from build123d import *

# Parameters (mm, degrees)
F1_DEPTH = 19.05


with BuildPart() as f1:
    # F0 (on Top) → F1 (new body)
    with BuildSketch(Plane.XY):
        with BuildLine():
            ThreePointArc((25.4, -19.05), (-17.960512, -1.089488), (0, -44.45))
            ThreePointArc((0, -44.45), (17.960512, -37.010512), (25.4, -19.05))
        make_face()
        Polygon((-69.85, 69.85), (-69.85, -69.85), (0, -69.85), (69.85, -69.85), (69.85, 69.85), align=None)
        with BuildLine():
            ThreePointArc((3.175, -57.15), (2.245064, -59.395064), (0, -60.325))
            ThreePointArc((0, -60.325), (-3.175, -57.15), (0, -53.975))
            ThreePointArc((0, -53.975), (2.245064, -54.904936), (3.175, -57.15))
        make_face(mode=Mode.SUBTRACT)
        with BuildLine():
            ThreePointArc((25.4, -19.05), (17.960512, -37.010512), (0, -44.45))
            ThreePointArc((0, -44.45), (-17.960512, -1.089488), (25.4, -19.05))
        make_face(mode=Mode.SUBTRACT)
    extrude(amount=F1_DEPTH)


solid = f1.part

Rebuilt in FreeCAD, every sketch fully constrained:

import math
import FreeCAD as App
import Part
import Sketcher
from FreeCAD import Vector
Q = App.Units.Quantity

doc = App.newDocument("Part")
body = doc.addObject("PartDesign::Body", "Body")

sketch1 = body.newObject("Sketcher::SketchObject", "Sketch")
sketch1.AttachmentSupport = (doc.getObject("XY_Plane"), [""])
sketch1.MapMode = "FlatFace"
sketch1.addGeometry([
    Part.LineSegment(Vector(-69.85, 69.85, 0), Vector(-69.85, -69.85, 0)),
    Part.LineSegment(Vector(-69.85, -69.85, 0), Vector(69.85, -69.85, 0)),
    Part.LineSegment(Vector(69.85, -69.85, 0), Vector(69.85, 69.85, 0)),
    Part.LineSegment(Vector(69.85, 69.85, 0), Vector(-69.85, 69.85, 0)),
    Part.ArcOfCircle(Part.Circle(Vector(0, -57.15, 0), Vector(0, 0, 1), 3.175), math.radians(0.000002), math.radians(89.999998)),
    Part.ArcOfCircle(Part.Circle(Vector(0, -57.15, 0), Vector(0, 0, 1), 3.175), math.radians(-89.999998), math.radians(-0.000002)),
    Part.ArcOfCircle(Part.Circle(Vector(0, -57.15, 0), Vector(0, 0, 1), 3.175), math.radians(90), math.radians(270)),
    Part.ArcOfCircle(Part.Circle(Vector(0, -19.05, 0), Vector(0, 0, 1), 25.4), math.radians(0), math.radians(270)),
    Part.ArcOfCircle(Part.Circle(Vector(-0.000001, -19.049999, 0), Vector(0, 0, 1), 25.400001), math.radians(-89.999998), math.radians(-0.000002)),
], False)
sketch1.addConstraint([
    Sketcher.Constraint("Coincident", 0, 2, 1, 1),
    Sketcher.Constraint("Coincident", 1, 2, 2, 1),
    Sketcher.Constraint("Coincident", 2, 2, 3, 1),
    Sketcher.Constraint("Coincident", 3, 2, 0, 1),
    Sketcher.Constraint("Tangent", 4, 1, 5, 2),
    Sketcher.Constraint("Tangent", 5, 1, 6, 2),
    Sketcher.Constraint("Tangent", 6, 1, 4, 2),
    Sketcher.Constraint("Tangent", 7, 1, 8, 2),
    Sketcher.Constraint("Coincident", 8, 1, 7, 2),
    Sketcher.Constraint("Vertical", 0),
    Sketcher.Constraint("Horizontal", 1),
    Sketcher.Constraint("Vertical", 2),
    Sketcher.Constraint("Horizontal", 3),
    Sketcher.Constraint("Symmetric", 0, 2, 2, 2, -1, 1),
    Sketcher.Constraint("PointOnObject", 4, 3, -2),
    Sketcher.Constraint("PointOnObject", 7, 3, -2),
    Sketcher.Constraint("PointOnObject", 5, 1, -2),
    Sketcher.Constraint("PointOnObject", 6, 1, -2),
    Sketcher.Constraint("PointOnObject", 8, 1, -2),
    Sketcher.Constraint("Horizontal", 6, 3, 4, 1),
    Sketcher.Constraint("Horizontal", 8, 3, 7, 1),
    Sketcher.Constraint("Equal", 3, 0),
    Sketcher.Constraint("Radius", 7, Q("1 in")),
    Sketcher.Constraint("DistanceX", 1, 1, 1, 2, Q("5.5 in")),
    Sketcher.Constraint("Radius", 4, Q("0.125 in")),
    Sketcher.Constraint("DistanceY", 0, 2, 8, 3, Q("2 in")),
    Sketcher.Constraint("DistanceY", 5, 3, 2, 2, Q("5 in")),
])
pad1 = body.newObject("PartDesign::Pad", "Pad")
pad1.Profile = sketch1
pad1.Length = Q("0.75 in")

doc.recompute()
